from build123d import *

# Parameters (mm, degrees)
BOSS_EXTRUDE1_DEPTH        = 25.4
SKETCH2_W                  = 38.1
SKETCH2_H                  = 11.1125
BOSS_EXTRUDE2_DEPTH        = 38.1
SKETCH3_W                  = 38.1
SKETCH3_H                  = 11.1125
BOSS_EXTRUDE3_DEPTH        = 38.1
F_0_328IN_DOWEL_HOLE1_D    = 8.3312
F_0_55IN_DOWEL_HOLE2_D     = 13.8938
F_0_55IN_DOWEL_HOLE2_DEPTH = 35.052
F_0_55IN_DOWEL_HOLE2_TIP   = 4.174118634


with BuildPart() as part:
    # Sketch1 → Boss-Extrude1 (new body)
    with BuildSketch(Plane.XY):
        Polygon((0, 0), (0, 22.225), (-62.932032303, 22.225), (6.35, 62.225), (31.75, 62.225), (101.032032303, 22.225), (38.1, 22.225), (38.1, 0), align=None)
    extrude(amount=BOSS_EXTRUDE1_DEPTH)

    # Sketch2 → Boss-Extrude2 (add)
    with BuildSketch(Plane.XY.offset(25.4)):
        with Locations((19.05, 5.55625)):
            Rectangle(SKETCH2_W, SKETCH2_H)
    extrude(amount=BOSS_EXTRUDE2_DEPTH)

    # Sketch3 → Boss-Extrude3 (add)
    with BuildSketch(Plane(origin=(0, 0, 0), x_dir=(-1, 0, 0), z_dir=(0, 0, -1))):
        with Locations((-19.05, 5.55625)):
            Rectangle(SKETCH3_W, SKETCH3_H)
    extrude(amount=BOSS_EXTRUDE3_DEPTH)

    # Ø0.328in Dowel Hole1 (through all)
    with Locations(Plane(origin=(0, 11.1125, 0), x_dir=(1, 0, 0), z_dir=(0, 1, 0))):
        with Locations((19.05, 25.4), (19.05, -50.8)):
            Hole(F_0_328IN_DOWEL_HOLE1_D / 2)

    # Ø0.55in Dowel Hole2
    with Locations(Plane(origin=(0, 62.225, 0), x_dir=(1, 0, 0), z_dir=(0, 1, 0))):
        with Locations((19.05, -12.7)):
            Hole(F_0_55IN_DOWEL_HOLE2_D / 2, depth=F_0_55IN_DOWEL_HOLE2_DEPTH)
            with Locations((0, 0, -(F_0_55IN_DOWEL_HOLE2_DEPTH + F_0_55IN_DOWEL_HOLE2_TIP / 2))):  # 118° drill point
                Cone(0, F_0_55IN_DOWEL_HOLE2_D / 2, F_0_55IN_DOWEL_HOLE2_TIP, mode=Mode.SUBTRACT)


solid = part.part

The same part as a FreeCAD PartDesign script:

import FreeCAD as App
import Part
import Sketcher

V = App.Vector
Q = App.Units.Quantity


def add_polygon(sketch, points):
    """Adds a closed chain of lines whose ends are joined by coincident constraints."""
    first, n = sketch.GeometryCount, len(points)
    for a, b in zip(points, points[1:] + points[:1]):
        sketch.addGeometry(Part.LineSegment(App.Vector(*a, 0), App.Vector(*b, 0)), False)
    for i in range(n):
        sketch.addConstraint(Sketcher.Constraint("Coincident", first + i, 2, first + (i + 1) % n, 1))

doc = App.newDocument("Part")
body = doc.addObject("PartDesign::Body", "Body")

# Sketch on XY plane
sketch1 = doc.addObject("Sketcher::SketchObject", "Sketch")
body.addObject(sketch1)
sketch1.AttachmentSupport = (doc.XY_Plane, [""])
sketch1.MapMode = "FlatFace"
add_polygon(sketch1, [(0, 22.225), (0, 0), (38.1, 0), (38.1, 22.225), (101.032032, 22.225), (31.75, 62.225), (6.35, 62.225), (-62.932032, 22.225)])  # lines 0-7
sketch1.addConstraint(Sketcher.Constraint("Vertical", 0))
sketch1.addConstraint(Sketcher.Constraint("Horizontal", 1))
sketch1.addConstraint(Sketcher.Constraint("Vertical", 2))
sketch1.addConstraint(Sketcher.Constraint("Horizontal", 3))
sketch1.addConstraint(Sketcher.Constraint("Horizontal", 5))
sketch1.addConstraint(Sketcher.Constraint("Horizontal", 7))
sketch1.addConstraint(Sketcher.Constraint("Coincident", 0, 2, -1, 1))
sketch1.addConstraint(Sketcher.Constraint("Horizontal", 3, 2, 6, 2))
sketch1.addConstraint(Sketcher.Constraint("Equal", 3, 7))
sketch1.addConstraint(Sketcher.Constraint("Equal", 4, 6))
sketch1.addConstraint(Sketcher.Constraint("DistanceX", 5, 2, 5, 1, Q("1 in")))
sketch1.addConstraint(Sketcher.Constraint("DistanceX", 1, 1, 1, 2, Q("1.5 in")))
sketch1.addConstraint(Sketcher.Constraint("Angle", 4, Q("150 deg")))
sketch1.addConstraint(Sketcher.Constraint("DistanceY", 0, 2, 0, 1, Q("0.875 in")))
sketch1.addConstraint(Sketcher.Constraint("Distance", 4, Q("80 mm")))
pad1 = doc.addObject("PartDesign::Pad", "Pad")
body.addObject(pad1)
pad1.Profile = sketch1
pad1.Length = Q("1 in")

# Sketch on XY plane
sketch2 = doc.addObject("Sketcher::SketchObject", "Sketch001")
body.addObject(sketch2)
sketch2.AttachmentSupport = (doc.XY_Plane, [""])
sketch2.MapMode = "FlatFace"
sketch2.AttachmentOffset = App.Placement(V(0, 0, 1 * 25.4), App.Rotation())
add_polygon(sketch2, [(0, 11.1125), (0, 0), (38.1, 0), (38.1, 11.1125)])  # lines 0-3
sketch2.addConstraint(Sketcher.Constraint("Vertical", 0))
sketch2.addConstraint(Sketcher.Constraint("Horizontal", 1))
sketch2.addConstraint(Sketcher.Constraint("Vertical", 2))
sketch2.addConstraint(Sketcher.Constraint("Horizontal", 3))
sketch2.addConstraint(Sketcher.Constraint("Coincident", 0, 2, -1, 1))
sketch2.addConstraint(Sketcher.Constraint("DistanceX", 1, 1, 1, 2, Q("1.5 in")))
sketch2.addConstraint(Sketcher.Constraint("DistanceY", 0, 2, 0, 1, Q("0.4375 in")))
pad2 = doc.addObject("PartDesign::Pad", "Pad001")
body.addObject(pad2)
pad2.Profile = sketch2
pad2.Length = Q("1.5 in")

# Sketch on XY plane
sketch3 = doc.addObject("Sketcher::SketchObject", "Sketch002")
body.addObject(sketch3)
sketch3.AttachmentSupport = (doc.XY_Plane, [""])
sketch3.MapMode = "FlatFace"
add_polygon(sketch3, [(38.1, 11.1125), (38.1, 0), (0, 0), (0, 11.1125)])  # lines 0-3
sketch3.addConstraint(Sketcher.Constraint("Vertical", 0))
sketch3.addConstraint(Sketcher.Constraint("Horizontal", 1))
sketch3.addConstraint(Sketcher.Constraint("Vertical", 2))
sketch3.addConstraint(Sketcher.Constraint("Horizontal", 3))
sketch3.addConstraint(Sketcher.Constraint("Coincident", 1, 2, -1, 1))
sketch3.addConstraint(Sketcher.Constraint("DistanceX", 1, 2, 1, 1, Q("1.5 in")))
sketch3.addConstraint(Sketcher.Constraint("DistanceY", 0, 2, 0, 1, Q("0.4375 in")))
pad3 = doc.addObject("PartDesign::Pad", "Pad002")
body.addObject(pad3)
pad3.Profile = sketch3
pad3.Length = Q("1.5 in")
pad3.Reversed = True

# Sketch on XZ plane
sketch4 = doc.addObject("Sketcher::SketchObject", "Sketch003")
body.addObject(sketch4)
sketch4.AttachmentSupport = (doc.XZ_Plane, [""])
sketch4.MapMode = "FlatFace"
sketch4.AttachmentOffset = App.Placement(V(0, 0, -0.4375 * 25.4), App.Rotation())
sketch4.addGeometry(Part.Circle(V(19.05, -25.4, 0), V(0, 0, 1), 4.1656), False)
sketch4.addGeometry(Part.Circle(V(19.05, 50.8, 0), V(0, 0, 1), 4.1656), False)
sketch4.addConstraint(Sketcher.Constraint("Equal", 0, 1))
sketch4.addConstraint(Sketcher.Constraint("Vertical", 0, 3, 1, 3))
sketch4.addConstraint(Sketcher.Constraint("Diameter", 0, Q("0.328 in")))
sketch4.addConstraint(Sketcher.Constraint("DistanceY", 0, 3, -1, 1, Q("1 in")))
sketch4.addConstraint(Sketcher.Constraint("DistanceY", -1, 1, 1, 3, Q("2 in")))
sketch4.addConstraint(Sketcher.Constraint("DistanceX", -1, 1, 0, 3, Q("0.75 in")))
doc.recompute()
hole = doc.addObject("PartDesign::Hole", "Hole")
body.addObject(hole)
hole.Profile = sketch4
hole.ThreadType = "None"
hole.Diameter = Q("0.328 in")
hole.DepthType = "ThroughAll"
hole.Reversed = True

# Sketch on XZ plane
sketch5 = doc.addObject("Sketcher::SketchObject", "Sketch004")
body.addObject(sketch5)
sketch5.AttachmentSupport = (doc.XZ_Plane, [""])
sketch5.MapMode = "FlatFace"
sketch5.AttachmentOffset = App.Placement(V(0, 0, -62.225), App.Rotation())
sketch5.addGeometry(Part.Circle(V(19.05, 12.7, 0), V(0, 0, 1), 6.9469), False)
sketch5.addConstraint(Sketcher.Constraint("Diameter", 0, Q("0.547 in")))
sketch5.addConstraint(Sketcher.Constraint("DistanceY", -1, 1, 0, 3, Q("0.5 in")))
sketch5.addConstraint(Sketcher.Constraint("DistanceX", -1, 1, 0, 3, Q("0.75 in")))
doc.recompute()
hole2 = doc.addObject("PartDesign::Hole", "Hole001")
body.addObject(hole2)
hole2.Profile = sketch5
hole2.ThreadType = "None"
hole2.Diameter = Q("0.547 in")
hole2.DepthType = "Dimension"
hole2.Depth = Q("1.38 in")
hole2.DrillPoint = "Angled"
hole2.DrillPointAngle = 118
hole2.Reversed = True

doc.recompute()
